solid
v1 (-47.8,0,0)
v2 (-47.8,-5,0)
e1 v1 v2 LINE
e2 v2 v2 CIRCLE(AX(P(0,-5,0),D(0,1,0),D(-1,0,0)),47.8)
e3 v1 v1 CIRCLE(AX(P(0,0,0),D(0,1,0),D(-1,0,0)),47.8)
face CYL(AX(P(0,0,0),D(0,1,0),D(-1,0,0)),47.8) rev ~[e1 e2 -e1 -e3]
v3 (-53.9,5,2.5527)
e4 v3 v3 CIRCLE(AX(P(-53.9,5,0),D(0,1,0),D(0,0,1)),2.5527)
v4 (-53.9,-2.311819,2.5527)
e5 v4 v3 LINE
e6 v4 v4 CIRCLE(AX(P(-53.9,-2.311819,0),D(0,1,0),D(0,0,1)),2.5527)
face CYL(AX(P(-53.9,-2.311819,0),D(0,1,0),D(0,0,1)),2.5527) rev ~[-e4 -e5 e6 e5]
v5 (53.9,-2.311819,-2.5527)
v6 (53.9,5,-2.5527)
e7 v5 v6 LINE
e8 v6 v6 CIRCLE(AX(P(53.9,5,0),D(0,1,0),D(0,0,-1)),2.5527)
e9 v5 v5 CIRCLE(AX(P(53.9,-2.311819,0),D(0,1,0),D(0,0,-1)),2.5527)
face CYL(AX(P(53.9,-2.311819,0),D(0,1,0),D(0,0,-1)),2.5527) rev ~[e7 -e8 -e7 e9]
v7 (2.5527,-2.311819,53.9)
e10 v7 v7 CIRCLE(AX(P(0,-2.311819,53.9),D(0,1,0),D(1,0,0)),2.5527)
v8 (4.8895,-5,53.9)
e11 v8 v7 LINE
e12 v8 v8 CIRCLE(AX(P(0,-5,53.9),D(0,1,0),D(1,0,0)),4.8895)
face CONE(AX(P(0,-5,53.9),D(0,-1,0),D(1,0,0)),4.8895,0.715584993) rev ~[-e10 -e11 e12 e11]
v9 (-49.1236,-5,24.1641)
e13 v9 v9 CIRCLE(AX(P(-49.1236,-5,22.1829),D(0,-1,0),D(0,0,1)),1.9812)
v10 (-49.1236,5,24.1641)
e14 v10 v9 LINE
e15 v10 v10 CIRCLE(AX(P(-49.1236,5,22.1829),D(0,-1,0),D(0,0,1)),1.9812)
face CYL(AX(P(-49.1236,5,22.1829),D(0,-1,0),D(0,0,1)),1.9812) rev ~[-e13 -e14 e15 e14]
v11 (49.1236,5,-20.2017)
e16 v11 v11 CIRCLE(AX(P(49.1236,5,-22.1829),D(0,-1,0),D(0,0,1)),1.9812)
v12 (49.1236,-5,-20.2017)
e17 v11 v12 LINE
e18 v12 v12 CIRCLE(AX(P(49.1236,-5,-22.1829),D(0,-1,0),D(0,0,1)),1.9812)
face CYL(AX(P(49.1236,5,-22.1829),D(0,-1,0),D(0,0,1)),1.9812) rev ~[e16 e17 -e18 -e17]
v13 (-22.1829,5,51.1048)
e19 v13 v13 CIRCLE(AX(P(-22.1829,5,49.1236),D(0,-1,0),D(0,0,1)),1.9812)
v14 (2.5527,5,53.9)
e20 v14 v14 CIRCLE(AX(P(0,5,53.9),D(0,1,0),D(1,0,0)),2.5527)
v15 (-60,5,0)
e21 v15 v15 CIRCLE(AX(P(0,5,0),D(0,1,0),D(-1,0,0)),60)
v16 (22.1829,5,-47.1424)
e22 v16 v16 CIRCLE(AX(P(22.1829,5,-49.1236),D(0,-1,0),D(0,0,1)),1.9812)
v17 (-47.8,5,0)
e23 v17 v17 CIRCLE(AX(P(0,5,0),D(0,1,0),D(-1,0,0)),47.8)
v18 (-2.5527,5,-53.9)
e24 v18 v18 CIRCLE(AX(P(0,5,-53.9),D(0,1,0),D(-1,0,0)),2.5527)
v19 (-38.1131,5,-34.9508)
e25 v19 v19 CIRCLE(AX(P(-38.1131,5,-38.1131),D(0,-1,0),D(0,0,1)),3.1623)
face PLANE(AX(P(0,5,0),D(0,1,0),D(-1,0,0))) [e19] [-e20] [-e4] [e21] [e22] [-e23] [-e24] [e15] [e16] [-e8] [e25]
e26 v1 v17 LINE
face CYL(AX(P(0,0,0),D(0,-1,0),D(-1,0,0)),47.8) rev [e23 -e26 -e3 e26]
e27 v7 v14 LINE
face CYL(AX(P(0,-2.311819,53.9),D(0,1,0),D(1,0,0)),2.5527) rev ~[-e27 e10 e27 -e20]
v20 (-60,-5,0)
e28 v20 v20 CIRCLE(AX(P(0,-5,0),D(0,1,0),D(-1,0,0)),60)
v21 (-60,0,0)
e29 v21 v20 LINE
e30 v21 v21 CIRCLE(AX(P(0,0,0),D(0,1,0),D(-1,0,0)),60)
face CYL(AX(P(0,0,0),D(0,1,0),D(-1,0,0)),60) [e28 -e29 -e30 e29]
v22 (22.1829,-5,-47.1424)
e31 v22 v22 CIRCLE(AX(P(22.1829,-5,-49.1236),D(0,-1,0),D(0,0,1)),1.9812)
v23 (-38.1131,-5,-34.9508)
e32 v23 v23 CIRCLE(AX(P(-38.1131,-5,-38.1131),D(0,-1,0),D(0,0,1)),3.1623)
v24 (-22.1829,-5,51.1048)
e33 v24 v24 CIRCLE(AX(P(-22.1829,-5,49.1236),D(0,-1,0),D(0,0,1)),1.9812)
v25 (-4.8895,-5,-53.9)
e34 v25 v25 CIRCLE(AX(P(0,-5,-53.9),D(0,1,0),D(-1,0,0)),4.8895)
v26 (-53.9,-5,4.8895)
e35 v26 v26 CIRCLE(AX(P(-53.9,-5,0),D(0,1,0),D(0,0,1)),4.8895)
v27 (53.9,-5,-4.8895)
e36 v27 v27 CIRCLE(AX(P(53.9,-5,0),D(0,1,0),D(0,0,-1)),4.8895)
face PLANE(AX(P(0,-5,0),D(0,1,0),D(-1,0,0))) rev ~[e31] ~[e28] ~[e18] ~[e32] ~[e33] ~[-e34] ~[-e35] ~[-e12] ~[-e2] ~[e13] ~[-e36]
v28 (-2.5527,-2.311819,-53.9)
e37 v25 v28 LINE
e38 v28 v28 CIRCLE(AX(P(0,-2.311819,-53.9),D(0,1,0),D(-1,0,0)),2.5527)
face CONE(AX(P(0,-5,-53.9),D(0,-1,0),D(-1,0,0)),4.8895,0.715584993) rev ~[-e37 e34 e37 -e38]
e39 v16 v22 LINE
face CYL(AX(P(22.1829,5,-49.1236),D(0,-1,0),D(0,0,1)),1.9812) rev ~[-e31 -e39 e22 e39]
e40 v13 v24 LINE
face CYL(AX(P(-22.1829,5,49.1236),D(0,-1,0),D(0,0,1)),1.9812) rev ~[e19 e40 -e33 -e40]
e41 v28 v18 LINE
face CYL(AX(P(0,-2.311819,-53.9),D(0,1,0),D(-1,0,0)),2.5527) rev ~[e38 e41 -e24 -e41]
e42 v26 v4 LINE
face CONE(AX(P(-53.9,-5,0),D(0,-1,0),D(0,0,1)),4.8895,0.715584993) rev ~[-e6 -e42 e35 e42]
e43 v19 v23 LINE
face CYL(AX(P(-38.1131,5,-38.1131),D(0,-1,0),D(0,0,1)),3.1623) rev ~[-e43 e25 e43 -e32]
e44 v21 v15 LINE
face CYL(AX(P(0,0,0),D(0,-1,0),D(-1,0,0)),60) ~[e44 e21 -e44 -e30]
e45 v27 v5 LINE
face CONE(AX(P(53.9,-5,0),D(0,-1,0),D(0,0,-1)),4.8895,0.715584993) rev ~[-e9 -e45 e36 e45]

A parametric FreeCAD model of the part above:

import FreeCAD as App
import Part
import Sketcher

V = App.Vector
Q = App.Units.Quantity

doc = App.newDocument("Part")
body = doc.addObject("PartDesign::Body", "Body")

# Sketch on XZ plane
sketch1 = body.newObject("Sketcher::SketchObject", "Sketch")
sketch1.AttachmentSupport = (doc.getObject("XZ_Plane"), [""])
sketch1.MapMode = "FlatFace"
sketch1.addGeometry([
    Part.Circle(V(0, 0, 0), V(0, 0, 1), 60),
    Part.Circle(V(0, 0, 0), V(0, 0, 1), 48),
], False)
sketch1.addConstraint([
    Sketcher.Constraint("Coincident", 0, 3, -1, 1),
    Sketcher.Constraint("Coincident", 1, 3, -1, 1),
    Sketcher.Constraint("Diameter", 0, Q("4.7244 in")),
    Sketcher.Constraint("Diameter", 1, 95.6),
])
pad1 = body.newObject("PartDesign::Pad", "Pad")
pad1.Profile = sketch1
pad1.Length = Q("0.3937008 in")
pad1.Midplane = True

# Sketch on XZ plane
sketch2 = body.newObject("Sketcher::SketchObject", "Sketch001")
sketch2.AttachmentSupport = (doc.getObject("XZ_Plane"), [""])
sketch2.MapMode = "FlatFace"
sketch2.AttachmentOffset = App.Placement(V(0, 0, 5), App.Rotation())
sketch2.addGeometry(Part.Circle(V(53.9, 0, 0), V(0, 0, 1), 2.6), False)
sketch2.addConstraint([
    Sketcher.Constraint("PointOnObject", 0, 3, -1),
    Sketcher.Constraint("Diameter", 0, Q("0.201 in")),
    Sketcher.Constraint("DistanceX", -1, 1, 0, 3, 53.9),
])
doc.recompute()
hole = body.newObject("PartDesign::Hole", "Hole")
hole.Profile = sketch2
hole.ThreadType = "None"
hole.Diameter = Q("0.201 in")
hole.DepthType = "ThroughAll"
hole.HoleCutType = "Countersink"
hole.HoleCutDiameter = Q("0.385 in")
hole.HoleCutCountersinkAngle = 82
doc.recompute()

polarpattern = body.newObject("PartDesign::PolarPattern", "PolarPattern")
polarpattern.Originals = [hole]
polarpattern.Axis = (doc.getObject("Y_Axis"), [""])
polarpattern.Angle = 360
polarpattern.Occurrences = 4
body.Tip = polarpattern

# Sketch on XZ plane
sketch3 = body.newObject("Sketcher::SketchObject", "Sketch002")
sketch3.AttachmentSupport = (doc.getObject("XZ_Plane"), [""])
sketch3.MapMode = "FlatFace"
sketch3.AttachmentOffset = App.Placement(V(0, 0, -5), App.Rotation())
sketch3.addGeometry([
    Part.Circle(V(22.2, -49.1, 0), V(0, 0, 1), 2),
    Part.Circle(V(49.1, -22.2, 0), V(0, 0, 1), 2),
    Part.Circle(V(-49.1, 22.2, 0), V(0, 0, 1), 2),
    Part.Circle(V(-22.2, 49.1, 0), V(0, 0, 1), 2),
], False)
sketch3.addConstraint([
    Sketcher.Constraint("Equal", 0, 1),
    Sketcher.Constraint("Equal", 1, 2),
    Sketcher.Constraint("Equal", 2, 3),
    Sketcher.Constraint("Symmetric", 1, 3, 2, 3, -1, 1),
    Sketcher.Constraint("Symmetric", 0, 3, 3, 3, -1, 1),
    Sketcher.Constraint("Diameter", 0, Q("0.156 in")),
    Sketcher.Constraint("DistanceY", 0, 3, -1, 1, Q("1.934 in")),
    Sketcher.Constraint("DistanceX", -1, 1, 1, 3, Q("1.934 in")),
    Sketcher.Constraint("DistanceX", -1, 1, 0, 3, 22.183),
    Sketcher.Constraint("DistanceY", 1, 3, -1, 1, 22.183),
])
doc.recompute()
hole2 = body.newObject("PartDesign::Hole", "Hole001")
hole2.Profile = sketch3
hole2.ThreadType = "None"
hole2.Diameter = Q("0.156 in")
hole2.DepthType = "ThroughAll"
hole2.Reversed = True

# Sketch on XZ plane
sketch4 = body.newObject("Sketcher::SketchObject", "Sketch003")
sketch4.AttachmentSupport = (doc.getObject("XZ_Plane"), [""])
sketch4.MapMode = "FlatFace"
sketch4.AttachmentOffset = App.Placement(V(0, 0, -5), App.Rotation())
sketch4.addGeometry(Part.Circle(V(-38.1, -38.1, 0), V(0, 0, 1), 3.2), False)
sketch4.addConstraint([
    Sketcher.Constraint("Diameter", 0, Q("0.249 in")),
    Sketcher.Constraint("DistanceX", 0, 3, -1, 1, Q("1.5005118 in")),
    Sketcher.Constraint("DistanceY", 0, 3, -1, 1, Q("1.5005118 in")),
])
doc.recompute()
hole3 = body.newObject("PartDesign::Hole", "Hole002")
hole3.Profile = sketch4
hole3.ThreadType = "None"
hole3.Diameter = Q("0.249 in")
hole3.DepthType = "ThroughAll"
hole3.Reversed = True

doc.recompute()
